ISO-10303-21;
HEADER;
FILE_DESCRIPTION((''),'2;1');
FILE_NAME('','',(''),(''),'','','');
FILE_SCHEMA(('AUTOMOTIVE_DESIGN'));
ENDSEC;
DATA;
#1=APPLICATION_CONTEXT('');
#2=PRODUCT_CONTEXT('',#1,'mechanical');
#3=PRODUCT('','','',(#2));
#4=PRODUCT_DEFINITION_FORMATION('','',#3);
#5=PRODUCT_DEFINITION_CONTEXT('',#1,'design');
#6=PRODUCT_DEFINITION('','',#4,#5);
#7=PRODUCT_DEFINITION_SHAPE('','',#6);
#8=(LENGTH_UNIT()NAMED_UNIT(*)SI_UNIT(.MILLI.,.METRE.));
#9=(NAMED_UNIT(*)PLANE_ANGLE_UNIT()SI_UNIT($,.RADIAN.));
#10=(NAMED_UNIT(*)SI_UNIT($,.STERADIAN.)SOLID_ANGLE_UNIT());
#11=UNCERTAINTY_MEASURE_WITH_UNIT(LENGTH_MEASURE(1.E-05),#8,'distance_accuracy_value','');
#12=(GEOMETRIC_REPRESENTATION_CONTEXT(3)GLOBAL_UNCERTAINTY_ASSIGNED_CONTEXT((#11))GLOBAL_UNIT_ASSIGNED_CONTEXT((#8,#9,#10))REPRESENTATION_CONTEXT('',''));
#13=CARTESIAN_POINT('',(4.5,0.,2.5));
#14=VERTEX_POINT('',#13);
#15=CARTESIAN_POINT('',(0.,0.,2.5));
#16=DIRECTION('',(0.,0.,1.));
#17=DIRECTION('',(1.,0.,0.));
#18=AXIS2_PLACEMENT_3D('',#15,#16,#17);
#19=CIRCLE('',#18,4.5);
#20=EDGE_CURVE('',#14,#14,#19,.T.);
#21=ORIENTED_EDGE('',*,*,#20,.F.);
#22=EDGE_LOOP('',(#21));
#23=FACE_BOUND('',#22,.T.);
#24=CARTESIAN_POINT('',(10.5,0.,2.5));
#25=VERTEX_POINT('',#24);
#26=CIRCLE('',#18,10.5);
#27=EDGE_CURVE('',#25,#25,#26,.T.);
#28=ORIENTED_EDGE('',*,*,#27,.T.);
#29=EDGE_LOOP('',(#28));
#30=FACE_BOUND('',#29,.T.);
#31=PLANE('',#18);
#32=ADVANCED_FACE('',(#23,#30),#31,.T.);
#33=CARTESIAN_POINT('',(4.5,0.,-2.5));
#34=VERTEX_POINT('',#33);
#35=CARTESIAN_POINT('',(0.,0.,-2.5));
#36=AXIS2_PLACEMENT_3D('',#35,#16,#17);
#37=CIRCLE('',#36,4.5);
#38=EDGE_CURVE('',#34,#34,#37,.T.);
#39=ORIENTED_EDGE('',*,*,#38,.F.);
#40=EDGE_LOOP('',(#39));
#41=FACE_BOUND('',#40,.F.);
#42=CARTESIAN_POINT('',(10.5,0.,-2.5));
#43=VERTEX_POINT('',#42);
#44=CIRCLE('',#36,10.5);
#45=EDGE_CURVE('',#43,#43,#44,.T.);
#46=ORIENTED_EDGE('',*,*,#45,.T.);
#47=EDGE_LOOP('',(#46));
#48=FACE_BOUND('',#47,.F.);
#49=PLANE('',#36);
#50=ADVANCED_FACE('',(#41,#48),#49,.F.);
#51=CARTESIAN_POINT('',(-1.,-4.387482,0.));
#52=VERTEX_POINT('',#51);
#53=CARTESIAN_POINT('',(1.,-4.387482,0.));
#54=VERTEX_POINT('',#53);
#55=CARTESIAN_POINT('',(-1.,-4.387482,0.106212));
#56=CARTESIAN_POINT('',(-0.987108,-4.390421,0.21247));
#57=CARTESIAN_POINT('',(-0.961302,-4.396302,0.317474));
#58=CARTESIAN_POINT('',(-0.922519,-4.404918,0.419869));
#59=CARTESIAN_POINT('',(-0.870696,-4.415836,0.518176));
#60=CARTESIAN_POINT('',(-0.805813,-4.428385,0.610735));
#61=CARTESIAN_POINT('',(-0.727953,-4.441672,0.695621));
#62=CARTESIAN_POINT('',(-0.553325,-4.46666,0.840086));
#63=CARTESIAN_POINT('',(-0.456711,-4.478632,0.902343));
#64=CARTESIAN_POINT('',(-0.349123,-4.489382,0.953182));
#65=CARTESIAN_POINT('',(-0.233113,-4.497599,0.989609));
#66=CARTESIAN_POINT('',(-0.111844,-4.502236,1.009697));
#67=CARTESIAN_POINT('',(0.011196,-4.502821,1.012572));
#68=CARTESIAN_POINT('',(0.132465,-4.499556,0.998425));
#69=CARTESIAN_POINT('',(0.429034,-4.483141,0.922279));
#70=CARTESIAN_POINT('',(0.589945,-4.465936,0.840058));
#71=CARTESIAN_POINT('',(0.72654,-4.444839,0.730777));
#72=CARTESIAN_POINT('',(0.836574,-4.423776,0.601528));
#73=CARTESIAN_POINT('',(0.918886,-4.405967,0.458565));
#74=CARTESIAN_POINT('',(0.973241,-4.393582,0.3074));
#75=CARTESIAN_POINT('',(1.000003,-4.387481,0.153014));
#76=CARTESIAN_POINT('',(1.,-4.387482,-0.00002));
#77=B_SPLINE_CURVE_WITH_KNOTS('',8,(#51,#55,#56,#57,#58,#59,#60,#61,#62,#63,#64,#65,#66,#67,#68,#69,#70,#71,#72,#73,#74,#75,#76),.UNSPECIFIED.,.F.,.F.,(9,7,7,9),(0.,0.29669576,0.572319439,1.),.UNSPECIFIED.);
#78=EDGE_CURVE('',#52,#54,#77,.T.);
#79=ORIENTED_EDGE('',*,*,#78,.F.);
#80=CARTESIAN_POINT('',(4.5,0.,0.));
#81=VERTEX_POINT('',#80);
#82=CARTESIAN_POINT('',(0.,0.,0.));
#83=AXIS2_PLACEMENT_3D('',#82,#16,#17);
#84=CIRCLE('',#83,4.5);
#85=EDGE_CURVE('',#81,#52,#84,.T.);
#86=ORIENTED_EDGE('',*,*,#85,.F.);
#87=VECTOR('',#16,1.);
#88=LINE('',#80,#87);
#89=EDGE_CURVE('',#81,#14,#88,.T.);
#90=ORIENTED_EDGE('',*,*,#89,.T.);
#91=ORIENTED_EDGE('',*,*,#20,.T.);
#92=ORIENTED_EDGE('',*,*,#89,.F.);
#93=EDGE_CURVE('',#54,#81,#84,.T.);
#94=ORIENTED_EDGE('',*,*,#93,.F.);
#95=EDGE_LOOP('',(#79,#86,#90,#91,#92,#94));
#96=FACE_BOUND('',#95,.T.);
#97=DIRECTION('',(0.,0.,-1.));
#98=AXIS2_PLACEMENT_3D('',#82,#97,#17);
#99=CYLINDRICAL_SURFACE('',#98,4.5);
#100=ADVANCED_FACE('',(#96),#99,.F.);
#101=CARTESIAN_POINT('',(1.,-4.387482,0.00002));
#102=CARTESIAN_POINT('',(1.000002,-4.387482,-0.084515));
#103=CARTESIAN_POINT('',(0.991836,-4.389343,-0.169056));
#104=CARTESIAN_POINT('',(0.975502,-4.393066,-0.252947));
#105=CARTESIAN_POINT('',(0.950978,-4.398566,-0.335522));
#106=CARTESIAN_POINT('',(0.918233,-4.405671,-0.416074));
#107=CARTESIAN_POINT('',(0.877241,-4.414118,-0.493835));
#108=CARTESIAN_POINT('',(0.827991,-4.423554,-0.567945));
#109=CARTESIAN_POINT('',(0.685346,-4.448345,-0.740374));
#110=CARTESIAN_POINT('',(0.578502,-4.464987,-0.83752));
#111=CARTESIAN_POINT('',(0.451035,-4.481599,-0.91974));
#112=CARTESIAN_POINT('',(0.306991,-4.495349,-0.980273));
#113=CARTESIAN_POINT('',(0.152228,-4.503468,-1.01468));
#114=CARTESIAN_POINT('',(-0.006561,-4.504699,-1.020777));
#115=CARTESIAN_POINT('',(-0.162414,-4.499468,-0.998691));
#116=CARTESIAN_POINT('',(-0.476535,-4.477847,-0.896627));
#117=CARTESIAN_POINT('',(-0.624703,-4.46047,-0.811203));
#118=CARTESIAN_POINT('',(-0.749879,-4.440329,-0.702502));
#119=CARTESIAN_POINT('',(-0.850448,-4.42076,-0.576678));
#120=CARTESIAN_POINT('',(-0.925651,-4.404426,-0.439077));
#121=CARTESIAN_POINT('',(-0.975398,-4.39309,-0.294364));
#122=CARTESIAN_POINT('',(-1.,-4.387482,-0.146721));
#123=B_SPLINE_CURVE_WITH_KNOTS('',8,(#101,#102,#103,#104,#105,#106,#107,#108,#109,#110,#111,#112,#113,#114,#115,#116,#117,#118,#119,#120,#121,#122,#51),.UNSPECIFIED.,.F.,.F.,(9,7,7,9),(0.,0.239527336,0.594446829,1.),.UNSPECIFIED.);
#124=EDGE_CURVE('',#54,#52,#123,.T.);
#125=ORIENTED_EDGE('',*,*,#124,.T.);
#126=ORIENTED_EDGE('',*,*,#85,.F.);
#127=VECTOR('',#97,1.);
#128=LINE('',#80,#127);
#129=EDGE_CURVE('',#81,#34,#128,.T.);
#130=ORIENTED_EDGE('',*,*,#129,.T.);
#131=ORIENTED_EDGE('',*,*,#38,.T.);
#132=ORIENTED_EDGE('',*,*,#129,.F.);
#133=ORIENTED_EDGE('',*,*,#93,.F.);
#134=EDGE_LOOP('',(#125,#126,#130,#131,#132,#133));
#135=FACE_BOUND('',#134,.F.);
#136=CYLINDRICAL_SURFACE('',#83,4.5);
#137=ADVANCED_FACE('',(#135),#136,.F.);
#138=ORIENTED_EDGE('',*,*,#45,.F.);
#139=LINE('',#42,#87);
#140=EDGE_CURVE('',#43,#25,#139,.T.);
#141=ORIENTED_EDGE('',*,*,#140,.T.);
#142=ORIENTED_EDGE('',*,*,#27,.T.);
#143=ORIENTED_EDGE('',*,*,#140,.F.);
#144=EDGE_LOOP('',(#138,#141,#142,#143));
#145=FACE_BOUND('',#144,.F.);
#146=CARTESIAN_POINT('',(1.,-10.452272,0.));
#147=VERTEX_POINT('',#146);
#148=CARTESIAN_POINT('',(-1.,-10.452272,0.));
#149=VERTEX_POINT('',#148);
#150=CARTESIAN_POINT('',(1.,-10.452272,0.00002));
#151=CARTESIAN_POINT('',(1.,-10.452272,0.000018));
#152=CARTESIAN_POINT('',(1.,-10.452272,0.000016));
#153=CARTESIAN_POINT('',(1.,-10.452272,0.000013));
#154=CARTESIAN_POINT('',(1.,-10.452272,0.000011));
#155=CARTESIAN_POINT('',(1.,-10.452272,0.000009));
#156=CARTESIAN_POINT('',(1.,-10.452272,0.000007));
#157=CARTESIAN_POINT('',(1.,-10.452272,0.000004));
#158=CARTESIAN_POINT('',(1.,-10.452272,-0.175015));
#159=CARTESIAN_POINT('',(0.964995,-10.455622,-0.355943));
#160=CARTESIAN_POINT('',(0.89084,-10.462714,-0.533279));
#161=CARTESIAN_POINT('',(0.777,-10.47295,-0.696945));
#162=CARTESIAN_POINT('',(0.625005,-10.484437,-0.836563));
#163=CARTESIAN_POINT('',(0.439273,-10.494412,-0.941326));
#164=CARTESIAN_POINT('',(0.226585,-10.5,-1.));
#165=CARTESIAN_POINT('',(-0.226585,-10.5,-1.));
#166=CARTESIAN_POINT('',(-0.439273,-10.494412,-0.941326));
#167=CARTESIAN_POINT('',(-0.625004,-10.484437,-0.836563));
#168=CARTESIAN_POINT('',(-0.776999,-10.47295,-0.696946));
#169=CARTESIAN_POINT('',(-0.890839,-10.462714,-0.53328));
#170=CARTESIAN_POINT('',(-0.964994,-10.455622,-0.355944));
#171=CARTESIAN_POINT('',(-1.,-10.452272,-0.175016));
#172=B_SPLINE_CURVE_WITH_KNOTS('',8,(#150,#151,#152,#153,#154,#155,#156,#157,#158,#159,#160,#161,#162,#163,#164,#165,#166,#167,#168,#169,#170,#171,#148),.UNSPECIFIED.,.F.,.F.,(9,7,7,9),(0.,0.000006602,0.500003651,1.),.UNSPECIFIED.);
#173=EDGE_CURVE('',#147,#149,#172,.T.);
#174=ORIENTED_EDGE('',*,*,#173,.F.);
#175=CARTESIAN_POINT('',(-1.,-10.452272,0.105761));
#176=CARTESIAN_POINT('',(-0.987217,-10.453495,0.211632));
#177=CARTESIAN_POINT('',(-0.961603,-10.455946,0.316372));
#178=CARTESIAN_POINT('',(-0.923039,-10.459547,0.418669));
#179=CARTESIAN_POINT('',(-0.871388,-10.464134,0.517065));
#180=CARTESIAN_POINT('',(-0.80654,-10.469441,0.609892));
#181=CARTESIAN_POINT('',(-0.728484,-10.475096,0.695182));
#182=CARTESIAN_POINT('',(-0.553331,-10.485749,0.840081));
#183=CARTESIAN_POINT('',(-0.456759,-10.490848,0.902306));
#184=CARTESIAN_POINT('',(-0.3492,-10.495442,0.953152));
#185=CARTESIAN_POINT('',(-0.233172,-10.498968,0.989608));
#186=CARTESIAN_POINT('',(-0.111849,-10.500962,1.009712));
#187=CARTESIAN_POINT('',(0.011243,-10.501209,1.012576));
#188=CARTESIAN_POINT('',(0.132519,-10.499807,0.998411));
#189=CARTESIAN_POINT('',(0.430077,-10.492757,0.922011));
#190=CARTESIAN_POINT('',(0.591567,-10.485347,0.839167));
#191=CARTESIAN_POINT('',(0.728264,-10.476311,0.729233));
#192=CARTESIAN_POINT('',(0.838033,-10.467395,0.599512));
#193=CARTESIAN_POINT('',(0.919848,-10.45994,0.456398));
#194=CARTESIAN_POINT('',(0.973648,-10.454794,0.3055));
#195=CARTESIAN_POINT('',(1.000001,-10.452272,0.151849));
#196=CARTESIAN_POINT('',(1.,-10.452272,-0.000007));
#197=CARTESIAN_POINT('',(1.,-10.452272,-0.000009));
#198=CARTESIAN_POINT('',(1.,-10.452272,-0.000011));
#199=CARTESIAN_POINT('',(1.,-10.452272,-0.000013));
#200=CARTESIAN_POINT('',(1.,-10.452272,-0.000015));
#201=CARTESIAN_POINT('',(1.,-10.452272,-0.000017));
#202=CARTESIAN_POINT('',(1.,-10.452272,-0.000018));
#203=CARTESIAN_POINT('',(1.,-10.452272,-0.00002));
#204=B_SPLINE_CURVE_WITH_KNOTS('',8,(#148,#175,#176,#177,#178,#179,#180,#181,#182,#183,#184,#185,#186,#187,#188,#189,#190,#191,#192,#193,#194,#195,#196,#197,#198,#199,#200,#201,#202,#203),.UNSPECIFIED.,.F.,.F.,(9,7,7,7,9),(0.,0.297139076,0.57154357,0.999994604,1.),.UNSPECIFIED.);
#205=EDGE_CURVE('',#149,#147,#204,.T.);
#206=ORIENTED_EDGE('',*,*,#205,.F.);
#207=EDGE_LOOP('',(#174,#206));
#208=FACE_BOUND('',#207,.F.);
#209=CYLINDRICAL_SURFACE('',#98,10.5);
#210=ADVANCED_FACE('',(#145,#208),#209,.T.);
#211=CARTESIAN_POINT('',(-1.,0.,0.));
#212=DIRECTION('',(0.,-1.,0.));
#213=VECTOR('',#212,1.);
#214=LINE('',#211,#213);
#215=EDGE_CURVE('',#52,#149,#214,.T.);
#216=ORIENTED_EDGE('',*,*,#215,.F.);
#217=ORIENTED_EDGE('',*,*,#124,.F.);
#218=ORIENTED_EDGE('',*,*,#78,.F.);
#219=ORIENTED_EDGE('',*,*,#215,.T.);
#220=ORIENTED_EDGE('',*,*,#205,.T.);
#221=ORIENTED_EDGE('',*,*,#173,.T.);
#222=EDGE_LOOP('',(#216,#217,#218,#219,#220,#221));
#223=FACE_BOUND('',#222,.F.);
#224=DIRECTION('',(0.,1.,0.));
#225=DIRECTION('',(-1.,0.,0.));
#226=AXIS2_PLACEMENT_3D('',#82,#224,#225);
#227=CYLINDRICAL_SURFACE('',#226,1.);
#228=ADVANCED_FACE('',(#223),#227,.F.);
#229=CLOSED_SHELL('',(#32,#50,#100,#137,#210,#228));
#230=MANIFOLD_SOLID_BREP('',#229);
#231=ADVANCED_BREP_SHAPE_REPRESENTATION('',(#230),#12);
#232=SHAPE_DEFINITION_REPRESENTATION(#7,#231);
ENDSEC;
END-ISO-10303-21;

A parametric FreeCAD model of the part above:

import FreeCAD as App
import Part
import Sketcher

V = App.Vector
Q = App.Units.Quantity

doc = App.newDocument("Part")
body = doc.addObject("PartDesign::Body", "Body")

# Sketch on XY plane
sketch1 = body.newObject("Sketcher::SketchObject", "Sketch")
sketch1.AttachmentSupport = (doc.getObject("XY_Plane"), [""])
sketch1.MapMode = "FlatFace"
sketch1.addGeometry(Part.Circle(V(0, 0, 0), V(0, 0, 1), 10.5), False)
sketch1.addGeometry(Part.Circle(V(0, 0, 0), V(0, 0, 1), 4.5), False)
sketch1.addConstraint(Sketcher.Constraint("Coincident", 0, 3, -1, 1))
sketch1.addConstraint(Sketcher.Constraint("Coincident", 1, 3, -1, 1))
sketch1.addConstraint(Sketcher.Constraint("Diameter", 1, Q("9 mm")))
sketch1.addConstraint(Sketcher.Constraint("Diameter", 0, Q("21 mm")))
pad1 = body.newObject("PartDesign::Pad", "Pad")
pad1.Profile = sketch1
pad1.Length = 5
pad1.Midplane = True

# Sketch on XZ plane
sketch2 = body.newObject("Sketcher::SketchObject", "Sketch001")
sketch2.AttachmentSupport = (doc.getObject("XZ_Plane"), [""])
sketch2.MapMode = "FlatFace"
sketch2.addGeometry(Part.Circle(V(0, 0, 0), V(0, 0, 1), 1), False)
sketch2.addConstraint(Sketcher.Constraint("Coincident", 0, 3, -1, 1))
sketch2.addConstraint(Sketcher.Constraint("Diameter", 0, Q("2 mm")))
pocket1 = body.newObject("PartDesign::Pocket", "Pocket")
pocket1.Profile = sketch2
pocket1.Type = "ThroughAll"
pocket1.Reversed = True

doc.recompute()
